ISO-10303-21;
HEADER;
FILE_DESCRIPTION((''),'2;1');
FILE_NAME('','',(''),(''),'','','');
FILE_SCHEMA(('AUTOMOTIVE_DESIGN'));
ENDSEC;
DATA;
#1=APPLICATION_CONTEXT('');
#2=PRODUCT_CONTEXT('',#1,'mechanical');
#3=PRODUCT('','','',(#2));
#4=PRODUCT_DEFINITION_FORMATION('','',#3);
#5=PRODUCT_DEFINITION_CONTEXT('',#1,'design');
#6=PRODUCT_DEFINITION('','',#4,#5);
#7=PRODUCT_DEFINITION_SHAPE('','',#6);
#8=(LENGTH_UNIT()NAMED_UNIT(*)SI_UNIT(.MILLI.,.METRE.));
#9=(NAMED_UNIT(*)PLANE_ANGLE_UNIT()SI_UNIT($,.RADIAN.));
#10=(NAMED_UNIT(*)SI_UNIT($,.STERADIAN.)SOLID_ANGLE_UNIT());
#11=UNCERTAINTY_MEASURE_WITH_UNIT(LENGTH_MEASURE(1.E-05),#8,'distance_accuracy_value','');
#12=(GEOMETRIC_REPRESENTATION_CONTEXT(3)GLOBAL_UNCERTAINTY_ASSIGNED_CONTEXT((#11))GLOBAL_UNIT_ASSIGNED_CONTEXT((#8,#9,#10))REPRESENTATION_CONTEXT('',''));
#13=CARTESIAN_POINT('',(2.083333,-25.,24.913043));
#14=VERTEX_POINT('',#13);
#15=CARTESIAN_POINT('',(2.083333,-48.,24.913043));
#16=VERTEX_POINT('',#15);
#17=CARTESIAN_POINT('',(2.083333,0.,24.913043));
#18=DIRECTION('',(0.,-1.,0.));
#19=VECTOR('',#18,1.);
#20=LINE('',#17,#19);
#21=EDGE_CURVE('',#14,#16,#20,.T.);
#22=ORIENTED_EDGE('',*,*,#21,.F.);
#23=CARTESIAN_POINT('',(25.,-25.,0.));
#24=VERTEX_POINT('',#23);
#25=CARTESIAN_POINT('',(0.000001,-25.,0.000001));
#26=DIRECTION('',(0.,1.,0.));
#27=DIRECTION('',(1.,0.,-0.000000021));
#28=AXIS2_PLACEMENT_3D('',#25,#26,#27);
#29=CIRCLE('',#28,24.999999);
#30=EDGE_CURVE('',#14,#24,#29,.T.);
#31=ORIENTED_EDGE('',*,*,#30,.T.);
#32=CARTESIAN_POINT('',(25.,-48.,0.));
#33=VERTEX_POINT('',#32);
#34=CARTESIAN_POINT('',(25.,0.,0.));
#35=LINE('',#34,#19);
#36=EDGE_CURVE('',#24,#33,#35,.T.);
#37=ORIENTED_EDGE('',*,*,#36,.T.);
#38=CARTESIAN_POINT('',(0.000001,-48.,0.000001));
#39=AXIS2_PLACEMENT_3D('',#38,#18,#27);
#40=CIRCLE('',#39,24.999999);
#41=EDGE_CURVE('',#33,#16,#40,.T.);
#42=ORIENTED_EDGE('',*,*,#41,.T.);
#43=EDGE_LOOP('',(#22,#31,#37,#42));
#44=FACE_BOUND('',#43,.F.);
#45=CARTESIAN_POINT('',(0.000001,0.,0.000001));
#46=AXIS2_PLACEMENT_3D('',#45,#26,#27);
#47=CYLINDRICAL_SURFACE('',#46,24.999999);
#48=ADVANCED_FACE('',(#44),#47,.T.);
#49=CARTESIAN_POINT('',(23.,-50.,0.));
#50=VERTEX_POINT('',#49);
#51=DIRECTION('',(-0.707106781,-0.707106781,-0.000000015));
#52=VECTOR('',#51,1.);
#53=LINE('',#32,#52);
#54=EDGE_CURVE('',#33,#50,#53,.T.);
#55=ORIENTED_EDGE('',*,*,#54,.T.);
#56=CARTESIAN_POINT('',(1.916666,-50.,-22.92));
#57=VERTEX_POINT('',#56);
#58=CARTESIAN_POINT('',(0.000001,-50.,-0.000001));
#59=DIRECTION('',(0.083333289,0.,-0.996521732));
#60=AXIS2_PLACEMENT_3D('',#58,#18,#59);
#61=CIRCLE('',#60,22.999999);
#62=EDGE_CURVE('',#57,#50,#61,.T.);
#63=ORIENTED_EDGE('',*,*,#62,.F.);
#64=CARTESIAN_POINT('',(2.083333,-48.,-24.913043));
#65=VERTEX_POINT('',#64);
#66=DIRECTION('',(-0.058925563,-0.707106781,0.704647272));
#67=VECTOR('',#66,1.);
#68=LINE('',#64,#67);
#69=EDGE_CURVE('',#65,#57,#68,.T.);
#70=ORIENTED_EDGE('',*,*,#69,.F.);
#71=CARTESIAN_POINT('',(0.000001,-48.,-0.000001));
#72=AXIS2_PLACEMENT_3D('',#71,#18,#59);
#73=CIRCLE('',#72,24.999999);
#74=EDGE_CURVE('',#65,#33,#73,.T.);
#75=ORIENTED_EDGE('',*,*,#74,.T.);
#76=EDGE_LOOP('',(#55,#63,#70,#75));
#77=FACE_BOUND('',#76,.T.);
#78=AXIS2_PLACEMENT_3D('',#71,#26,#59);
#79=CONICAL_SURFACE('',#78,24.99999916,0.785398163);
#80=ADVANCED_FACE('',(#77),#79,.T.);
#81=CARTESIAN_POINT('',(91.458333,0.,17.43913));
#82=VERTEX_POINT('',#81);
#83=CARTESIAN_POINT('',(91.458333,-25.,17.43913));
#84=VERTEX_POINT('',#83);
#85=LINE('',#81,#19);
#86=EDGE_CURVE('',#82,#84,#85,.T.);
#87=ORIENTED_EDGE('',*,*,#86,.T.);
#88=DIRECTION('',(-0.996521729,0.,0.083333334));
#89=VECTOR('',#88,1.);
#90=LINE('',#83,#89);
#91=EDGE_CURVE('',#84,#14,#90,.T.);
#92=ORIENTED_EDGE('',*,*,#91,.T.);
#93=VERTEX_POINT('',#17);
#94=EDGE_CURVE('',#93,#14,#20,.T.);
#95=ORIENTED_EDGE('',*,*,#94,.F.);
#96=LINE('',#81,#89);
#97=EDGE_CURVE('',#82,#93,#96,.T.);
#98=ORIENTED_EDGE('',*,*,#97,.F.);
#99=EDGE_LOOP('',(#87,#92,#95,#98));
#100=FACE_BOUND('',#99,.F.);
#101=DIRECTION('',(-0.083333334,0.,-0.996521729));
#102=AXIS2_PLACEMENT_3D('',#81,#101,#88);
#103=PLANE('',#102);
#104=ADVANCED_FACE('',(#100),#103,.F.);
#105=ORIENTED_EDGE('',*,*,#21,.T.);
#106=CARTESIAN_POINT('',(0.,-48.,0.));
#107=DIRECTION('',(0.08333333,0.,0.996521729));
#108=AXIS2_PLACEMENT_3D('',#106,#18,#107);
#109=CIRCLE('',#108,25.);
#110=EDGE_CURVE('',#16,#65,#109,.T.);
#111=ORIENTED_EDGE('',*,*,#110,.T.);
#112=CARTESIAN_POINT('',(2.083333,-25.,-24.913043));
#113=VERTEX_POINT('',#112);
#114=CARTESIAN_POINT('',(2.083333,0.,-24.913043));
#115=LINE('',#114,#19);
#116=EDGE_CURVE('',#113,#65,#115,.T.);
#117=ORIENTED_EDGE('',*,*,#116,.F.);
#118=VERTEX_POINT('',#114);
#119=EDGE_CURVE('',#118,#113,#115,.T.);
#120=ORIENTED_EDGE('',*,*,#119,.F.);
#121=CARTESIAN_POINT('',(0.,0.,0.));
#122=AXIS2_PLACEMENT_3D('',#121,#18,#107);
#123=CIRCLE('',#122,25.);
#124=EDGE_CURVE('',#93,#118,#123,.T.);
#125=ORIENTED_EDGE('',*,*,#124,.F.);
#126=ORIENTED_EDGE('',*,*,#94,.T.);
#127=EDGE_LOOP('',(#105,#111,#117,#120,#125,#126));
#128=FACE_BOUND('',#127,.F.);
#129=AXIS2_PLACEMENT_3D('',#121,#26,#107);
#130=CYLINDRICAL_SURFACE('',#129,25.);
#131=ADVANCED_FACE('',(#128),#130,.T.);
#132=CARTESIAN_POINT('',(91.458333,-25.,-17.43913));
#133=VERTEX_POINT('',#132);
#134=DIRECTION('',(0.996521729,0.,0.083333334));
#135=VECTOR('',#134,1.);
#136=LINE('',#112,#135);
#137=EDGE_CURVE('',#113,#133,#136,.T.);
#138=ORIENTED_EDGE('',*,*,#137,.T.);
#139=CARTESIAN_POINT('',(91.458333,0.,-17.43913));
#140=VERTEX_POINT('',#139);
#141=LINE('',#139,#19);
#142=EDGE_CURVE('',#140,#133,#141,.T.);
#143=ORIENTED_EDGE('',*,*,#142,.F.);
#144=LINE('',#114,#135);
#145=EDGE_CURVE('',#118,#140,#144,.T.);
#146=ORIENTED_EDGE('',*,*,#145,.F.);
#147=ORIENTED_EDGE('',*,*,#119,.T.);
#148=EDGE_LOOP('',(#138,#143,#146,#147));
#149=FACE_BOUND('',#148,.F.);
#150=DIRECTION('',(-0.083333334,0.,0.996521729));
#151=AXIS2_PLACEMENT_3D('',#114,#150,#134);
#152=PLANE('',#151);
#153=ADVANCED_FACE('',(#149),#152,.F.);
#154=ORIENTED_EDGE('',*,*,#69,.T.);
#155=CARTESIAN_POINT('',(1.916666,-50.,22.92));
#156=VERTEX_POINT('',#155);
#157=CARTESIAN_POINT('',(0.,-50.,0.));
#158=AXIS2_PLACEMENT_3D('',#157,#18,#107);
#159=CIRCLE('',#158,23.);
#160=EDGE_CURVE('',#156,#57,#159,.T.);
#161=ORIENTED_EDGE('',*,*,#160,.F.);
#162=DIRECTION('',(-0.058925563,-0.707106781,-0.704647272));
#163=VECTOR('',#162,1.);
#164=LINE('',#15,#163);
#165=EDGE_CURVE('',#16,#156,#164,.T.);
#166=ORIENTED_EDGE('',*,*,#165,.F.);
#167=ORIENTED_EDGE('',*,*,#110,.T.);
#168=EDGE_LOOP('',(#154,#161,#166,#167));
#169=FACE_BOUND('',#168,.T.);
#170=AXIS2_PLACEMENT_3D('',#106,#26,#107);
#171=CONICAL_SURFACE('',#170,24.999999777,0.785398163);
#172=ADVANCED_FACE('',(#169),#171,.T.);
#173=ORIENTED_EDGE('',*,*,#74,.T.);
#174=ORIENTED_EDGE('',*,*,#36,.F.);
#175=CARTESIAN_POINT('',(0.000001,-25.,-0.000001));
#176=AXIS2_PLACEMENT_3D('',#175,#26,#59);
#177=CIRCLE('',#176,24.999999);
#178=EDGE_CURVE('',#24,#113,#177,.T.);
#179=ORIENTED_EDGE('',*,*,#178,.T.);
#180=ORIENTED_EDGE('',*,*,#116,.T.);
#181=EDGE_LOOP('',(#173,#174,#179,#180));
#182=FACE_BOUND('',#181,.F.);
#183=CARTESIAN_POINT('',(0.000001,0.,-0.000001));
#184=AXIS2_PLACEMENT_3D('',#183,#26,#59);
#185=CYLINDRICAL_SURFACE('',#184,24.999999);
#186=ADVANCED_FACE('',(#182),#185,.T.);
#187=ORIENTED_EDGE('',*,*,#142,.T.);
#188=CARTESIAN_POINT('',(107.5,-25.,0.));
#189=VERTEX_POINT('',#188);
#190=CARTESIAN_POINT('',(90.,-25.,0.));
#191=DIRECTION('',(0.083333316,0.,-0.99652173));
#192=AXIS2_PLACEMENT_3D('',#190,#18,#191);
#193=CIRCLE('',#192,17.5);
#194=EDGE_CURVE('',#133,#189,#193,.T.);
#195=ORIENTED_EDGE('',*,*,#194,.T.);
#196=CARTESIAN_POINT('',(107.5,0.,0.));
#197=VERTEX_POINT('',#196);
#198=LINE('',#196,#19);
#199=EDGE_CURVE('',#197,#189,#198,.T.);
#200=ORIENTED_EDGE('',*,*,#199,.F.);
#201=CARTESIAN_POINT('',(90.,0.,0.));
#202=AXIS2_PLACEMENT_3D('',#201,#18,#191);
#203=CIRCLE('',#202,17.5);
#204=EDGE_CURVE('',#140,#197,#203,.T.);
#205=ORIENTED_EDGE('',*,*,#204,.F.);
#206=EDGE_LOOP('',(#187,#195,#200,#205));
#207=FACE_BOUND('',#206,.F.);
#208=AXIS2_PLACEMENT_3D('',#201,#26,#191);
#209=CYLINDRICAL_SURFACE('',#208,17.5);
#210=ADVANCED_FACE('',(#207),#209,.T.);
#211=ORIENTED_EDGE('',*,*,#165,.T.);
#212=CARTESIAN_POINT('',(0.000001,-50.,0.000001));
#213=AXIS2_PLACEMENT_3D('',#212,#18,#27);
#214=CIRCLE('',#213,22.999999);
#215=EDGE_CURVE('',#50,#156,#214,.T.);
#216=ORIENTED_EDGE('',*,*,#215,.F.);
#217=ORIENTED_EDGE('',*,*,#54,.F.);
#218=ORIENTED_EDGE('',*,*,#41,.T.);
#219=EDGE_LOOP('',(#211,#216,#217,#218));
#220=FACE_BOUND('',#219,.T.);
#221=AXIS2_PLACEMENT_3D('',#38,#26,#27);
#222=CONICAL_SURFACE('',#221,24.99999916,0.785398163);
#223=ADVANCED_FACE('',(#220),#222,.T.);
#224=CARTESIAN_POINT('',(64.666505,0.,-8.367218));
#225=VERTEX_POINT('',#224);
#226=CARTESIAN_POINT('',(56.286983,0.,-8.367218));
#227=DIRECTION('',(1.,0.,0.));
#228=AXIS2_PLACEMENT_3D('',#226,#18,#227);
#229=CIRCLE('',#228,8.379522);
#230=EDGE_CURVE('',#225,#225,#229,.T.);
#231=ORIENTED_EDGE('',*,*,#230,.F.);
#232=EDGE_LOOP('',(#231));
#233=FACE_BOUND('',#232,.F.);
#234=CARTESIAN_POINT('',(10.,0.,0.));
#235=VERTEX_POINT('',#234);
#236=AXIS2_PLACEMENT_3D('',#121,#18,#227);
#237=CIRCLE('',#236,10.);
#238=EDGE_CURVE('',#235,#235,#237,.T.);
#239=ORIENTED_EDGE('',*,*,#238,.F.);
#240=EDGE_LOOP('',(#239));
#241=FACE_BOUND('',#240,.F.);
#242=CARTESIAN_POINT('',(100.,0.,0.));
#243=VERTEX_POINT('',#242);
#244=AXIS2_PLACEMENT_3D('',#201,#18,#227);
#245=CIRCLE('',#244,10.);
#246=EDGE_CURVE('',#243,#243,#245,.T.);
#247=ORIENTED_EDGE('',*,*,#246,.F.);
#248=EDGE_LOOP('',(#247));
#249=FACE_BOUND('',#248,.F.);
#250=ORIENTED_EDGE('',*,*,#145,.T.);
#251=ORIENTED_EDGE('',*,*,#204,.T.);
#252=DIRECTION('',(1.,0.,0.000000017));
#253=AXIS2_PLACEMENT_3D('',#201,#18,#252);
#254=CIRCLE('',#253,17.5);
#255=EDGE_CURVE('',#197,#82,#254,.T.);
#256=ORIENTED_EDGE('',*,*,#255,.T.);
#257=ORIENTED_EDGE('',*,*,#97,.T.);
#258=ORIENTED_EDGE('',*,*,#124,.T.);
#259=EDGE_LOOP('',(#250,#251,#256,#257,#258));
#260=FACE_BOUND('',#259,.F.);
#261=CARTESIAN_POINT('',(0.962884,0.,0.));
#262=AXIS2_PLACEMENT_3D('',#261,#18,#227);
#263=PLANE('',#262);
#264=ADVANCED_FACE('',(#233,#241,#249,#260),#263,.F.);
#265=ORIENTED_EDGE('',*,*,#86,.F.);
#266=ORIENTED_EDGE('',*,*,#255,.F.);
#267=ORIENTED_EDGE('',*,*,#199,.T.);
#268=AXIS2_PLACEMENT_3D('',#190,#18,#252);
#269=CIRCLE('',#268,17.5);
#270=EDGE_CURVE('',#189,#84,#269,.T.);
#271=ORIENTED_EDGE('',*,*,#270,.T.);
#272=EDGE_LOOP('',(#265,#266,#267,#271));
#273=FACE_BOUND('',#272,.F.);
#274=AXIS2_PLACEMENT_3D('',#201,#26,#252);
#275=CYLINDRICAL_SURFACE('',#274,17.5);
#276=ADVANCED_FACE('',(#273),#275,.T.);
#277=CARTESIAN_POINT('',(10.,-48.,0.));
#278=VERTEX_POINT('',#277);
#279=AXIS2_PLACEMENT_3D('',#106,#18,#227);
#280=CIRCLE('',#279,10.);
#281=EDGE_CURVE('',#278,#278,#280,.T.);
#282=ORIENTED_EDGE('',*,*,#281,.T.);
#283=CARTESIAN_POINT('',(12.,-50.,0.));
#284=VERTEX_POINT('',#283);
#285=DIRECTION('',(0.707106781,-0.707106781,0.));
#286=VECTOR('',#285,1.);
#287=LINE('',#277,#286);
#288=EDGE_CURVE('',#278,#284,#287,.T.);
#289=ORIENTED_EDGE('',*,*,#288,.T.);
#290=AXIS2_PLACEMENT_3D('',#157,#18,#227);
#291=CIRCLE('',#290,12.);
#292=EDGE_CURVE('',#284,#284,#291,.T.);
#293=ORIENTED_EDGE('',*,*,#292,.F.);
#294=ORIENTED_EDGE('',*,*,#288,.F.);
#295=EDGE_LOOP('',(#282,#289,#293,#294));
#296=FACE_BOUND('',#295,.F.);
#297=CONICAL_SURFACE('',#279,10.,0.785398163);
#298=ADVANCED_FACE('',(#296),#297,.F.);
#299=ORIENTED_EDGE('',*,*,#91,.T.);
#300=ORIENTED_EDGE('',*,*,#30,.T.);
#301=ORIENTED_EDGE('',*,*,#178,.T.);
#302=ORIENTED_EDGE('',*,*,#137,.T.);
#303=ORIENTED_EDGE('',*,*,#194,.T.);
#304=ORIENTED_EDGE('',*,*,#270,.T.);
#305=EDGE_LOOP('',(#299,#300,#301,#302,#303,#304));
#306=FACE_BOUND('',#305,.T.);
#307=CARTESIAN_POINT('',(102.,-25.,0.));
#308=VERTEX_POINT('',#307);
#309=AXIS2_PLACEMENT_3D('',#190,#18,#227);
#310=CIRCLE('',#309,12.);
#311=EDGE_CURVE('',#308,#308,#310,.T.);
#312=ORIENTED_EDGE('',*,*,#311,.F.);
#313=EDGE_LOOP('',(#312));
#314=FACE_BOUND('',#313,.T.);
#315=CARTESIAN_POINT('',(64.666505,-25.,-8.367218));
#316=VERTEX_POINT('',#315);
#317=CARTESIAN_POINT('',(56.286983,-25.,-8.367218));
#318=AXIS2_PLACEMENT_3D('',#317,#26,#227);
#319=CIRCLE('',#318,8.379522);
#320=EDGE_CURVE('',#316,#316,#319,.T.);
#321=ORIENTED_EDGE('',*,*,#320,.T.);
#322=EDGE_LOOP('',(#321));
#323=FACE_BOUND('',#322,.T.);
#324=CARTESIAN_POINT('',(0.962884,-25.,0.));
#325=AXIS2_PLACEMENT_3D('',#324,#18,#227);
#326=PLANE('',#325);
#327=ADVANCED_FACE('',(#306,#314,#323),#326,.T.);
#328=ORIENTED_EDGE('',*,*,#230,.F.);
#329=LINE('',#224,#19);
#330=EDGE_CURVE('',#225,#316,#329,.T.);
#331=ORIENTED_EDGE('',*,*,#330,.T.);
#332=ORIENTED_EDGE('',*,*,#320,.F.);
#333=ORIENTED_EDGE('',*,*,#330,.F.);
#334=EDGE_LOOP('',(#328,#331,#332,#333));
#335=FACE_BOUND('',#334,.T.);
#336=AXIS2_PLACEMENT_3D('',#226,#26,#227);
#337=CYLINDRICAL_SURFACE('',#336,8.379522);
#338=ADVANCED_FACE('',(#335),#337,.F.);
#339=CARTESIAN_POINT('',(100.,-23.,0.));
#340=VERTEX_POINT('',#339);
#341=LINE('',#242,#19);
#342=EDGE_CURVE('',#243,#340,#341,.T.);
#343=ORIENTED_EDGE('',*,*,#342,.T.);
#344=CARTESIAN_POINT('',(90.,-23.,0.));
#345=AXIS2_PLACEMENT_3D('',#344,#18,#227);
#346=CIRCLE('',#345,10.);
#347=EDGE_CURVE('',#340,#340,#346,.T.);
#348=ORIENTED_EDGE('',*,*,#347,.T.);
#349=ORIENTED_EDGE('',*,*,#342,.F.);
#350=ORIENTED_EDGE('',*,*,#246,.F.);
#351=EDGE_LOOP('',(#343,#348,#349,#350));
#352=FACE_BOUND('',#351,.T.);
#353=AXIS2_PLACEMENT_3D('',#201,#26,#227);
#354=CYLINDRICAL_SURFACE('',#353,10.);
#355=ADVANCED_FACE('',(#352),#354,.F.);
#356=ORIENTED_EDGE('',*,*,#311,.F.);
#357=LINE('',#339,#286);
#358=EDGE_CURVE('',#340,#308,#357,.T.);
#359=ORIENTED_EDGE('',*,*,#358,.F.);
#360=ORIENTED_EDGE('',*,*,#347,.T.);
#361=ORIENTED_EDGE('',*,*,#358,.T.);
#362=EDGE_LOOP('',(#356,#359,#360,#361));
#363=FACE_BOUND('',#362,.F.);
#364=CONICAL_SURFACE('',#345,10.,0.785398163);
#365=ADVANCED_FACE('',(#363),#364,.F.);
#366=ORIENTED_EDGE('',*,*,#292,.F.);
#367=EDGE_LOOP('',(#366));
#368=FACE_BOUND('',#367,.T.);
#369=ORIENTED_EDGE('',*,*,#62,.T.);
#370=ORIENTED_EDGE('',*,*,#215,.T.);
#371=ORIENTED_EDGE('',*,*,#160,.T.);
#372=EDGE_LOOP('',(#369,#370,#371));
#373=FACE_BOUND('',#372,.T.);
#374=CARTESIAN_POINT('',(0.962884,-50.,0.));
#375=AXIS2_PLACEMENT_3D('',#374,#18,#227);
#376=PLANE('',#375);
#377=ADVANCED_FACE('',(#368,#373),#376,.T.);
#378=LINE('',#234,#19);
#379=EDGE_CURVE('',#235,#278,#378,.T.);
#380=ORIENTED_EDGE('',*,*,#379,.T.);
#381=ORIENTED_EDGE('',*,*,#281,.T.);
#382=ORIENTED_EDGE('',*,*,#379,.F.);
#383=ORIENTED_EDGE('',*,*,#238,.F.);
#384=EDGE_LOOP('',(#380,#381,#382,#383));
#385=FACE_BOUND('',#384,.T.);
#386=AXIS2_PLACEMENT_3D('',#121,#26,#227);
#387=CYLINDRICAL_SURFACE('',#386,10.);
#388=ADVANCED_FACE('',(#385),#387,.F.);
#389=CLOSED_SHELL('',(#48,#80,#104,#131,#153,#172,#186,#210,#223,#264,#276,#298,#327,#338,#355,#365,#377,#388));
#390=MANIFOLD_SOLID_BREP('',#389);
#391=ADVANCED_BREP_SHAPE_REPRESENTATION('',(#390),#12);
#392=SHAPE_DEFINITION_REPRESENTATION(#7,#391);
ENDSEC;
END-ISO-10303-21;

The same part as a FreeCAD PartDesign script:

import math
import FreeCAD as App
import Part
import Sketcher

V = App.Vector
Q = App.Units.Quantity


def edges_at(feature, points):
    """Names of the edges that pass closest to the given points."""
    edges = feature.Shape.Edges
    near = lambda p: min(range(len(edges)), key=lambda i: edges[i].distToShape(Part.Vertex(*p))[0])
    return sorted({f"Edge{near(p) + 1}" for p in points})

doc = App.newDocument("Part")
params = doc.addObject("Spreadsheet::Sheet", "Params")
for row, (alias, value) in enumerate([
    ("sketch1_diameter", "20 mm"),
    ("sketch1_radius", "25 mm"),
    ("sketch1_radius2", "17.5 mm"),
    ("pad1_length", "25 mm"),
    ("sketch2_diameter", "20 mm"),
    ("sketch2_radius", "24.999999 mm"),
    ("pad2_length", "50 mm"),
    ("chamfer_size", "2 mm"),
    ("pocket1_length", "34.1921 mm"),
], start=1):
    params.set(f"A{row}", alias)
    params.set(f"B{row}", "=" + value)
    params.setAlias(f"B{row}", alias)

body = doc.addObject("PartDesign::Body", "Body")

# Sketch on XZ plane
sketch1 = body.newObject("Sketcher::SketchObject", "Sketch")
sketch1.AttachmentSupport = (doc.getObject("XZ_Plane"), [""])
sketch1.MapMode = "FlatFace"
sketch1.addGeometry(Part.ArcOfCircle(Part.Circle(V(0, 0, 0), V(0, 0, 1), 25), math.radians(85), math.radians(275)), False)
sketch1.addGeometry(Part.LineSegment(V(2, -25, 0), V(91, -17, 0)), False)
sketch1.addGeometry(Part.ArcOfCircle(Part.Circle(V(90, 0, 0), V(0, 0, 1), 18), math.radians(-85), math.radians(0)), False)
sketch1.addGeometry(Part.ArcOfCircle(Part.Circle(V(90, 0, 0), V(0, 0, 1), 18), math.radians(0), math.radians(85)), False)
sketch1.addGeometry(Part.LineSegment(V(91, 17, 0), V(2, 25, 0)), False)
sketch1.addGeometry(Part.Circle(V(0, 0, 0), V(0, 0, 1), 10), False)
sketch1.addGeometry(Part.Circle(V(90, 0, 0), V(0, 0, 1), 10), False)
sketch1.addConstraint(Sketcher.Constraint("Tangent", 0, 2, 1, 1))
sketch1.addConstraint(Sketcher.Constraint("Tangent", 1, 2, 2, 1))
sketch1.addConstraint(Sketcher.Constraint("Tangent", 2, 2, 3, 1))
sketch1.addConstraint(Sketcher.Constraint("Tangent", 3, 2, 4, 1))
sketch1.addConstraint(Sketcher.Constraint("Tangent", 4, 2, 0, 1))
sketch1.addConstraint(Sketcher.Constraint("Coincident", 0, 3, -1, 1))
sketch1.addConstraint(Sketcher.Constraint("Coincident", 5, 3, -1, 1))
sketch1.addConstraint(Sketcher.Constraint("Coincident", 6, 3, 2, 3))
sketch1.addConstraint(Sketcher.Constraint("Equal", 2, 3))
sketch1.addConstraint(Sketcher.Constraint("Equal", 5, 6))
sketch1.addConstraint(Sketcher.Constraint("PointOnObject", 2, 3, -1))
sketch1.addConstraint(Sketcher.Constraint("PointOnObject", 2, 2, -1))
sketch1.addConstraint(Sketcher.Constraint("Diameter", 5, Q("20 mm")))
sketch1.addConstraint(Sketcher.Constraint("Radius", 0, Q("25 mm")))
sketch1.addConstraint(Sketcher.Constraint("Radius", 2, Q("17.5 mm")))
sketch1.addConstraint(Sketcher.Constraint("DistanceX", -1, 1, 2, 3, Q("90 mm")))
sketch1.setExpression("Constraints[12]", "Params.sketch1_diameter")
sketch1.setExpression("Constraints[13]", "Params.sketch1_radius")
sketch1.setExpression("Constraints[14]", "Params.sketch1_radius2")
pad1 = body.newObject("PartDesign::Pad", "Pad")
pad1.Profile = sketch1
pad1.setExpression("Length", "Params.pad1_length")

# Sketch on XZ plane
sketch2 = body.newObject("Sketcher::SketchObject", "Sketch001")
sketch2.AttachmentSupport = (doc.getObject("XZ_Plane"), [""])
sketch2.MapMode = "FlatFace"
sketch2.addGeometry(Part.ArcOfCircle(Part.Circle(V(0, 0, 0), V(0, 0, 1), 25), math.radians(-85), math.radians(0)), False)
sketch2.addGeometry(Part.ArcOfCircle(Part.Circle(V(0, 0, 0), V(0, 0, 1), 25), math.radians(0), math.radians(85)), False)
sketch2.addGeometry(Part.ArcOfCircle(Part.Circle(V(0, 0, 0), V(0, 0, 1), 25), math.radians(85), math.radians(275)), False)
sketch2.addGeometry(Part.Circle(V(0, 0, 0), V(0, 0, 1), 10), False)
sketch2.addConstraint(Sketcher.Constraint("Tangent", 0, 2, 1, 1))
sketch2.addConstraint(Sketcher.Constraint("Tangent", 1, 2, 2, 1))
sketch2.addConstraint(Sketcher.Constraint("Tangent", 2, 2, 0, 1))
sketch2.addConstraint(Sketcher.Constraint("Coincident", 0, 3, -1, 1))
sketch2.addConstraint(Sketcher.Constraint("Coincident", 3, 3, -1, 1))
sketch2.addConstraint(Sketcher.Constraint("PointOnObject", 0, 2, -1))
sketch2.addConstraint(Sketcher.Constraint("Vertical", 1, 2, 2, 2))
sketch2.addConstraint(Sketcher.Constraint("Diameter", 3, Q("20 mm")))
sketch2.addConstraint(Sketcher.Constraint("Radius", 0, Q("24.999999 mm")))
sketch2.addConstraint(Sketcher.Constraint("DistanceX", -1, 1, 1, 2, Q("2.083333 mm")))
sketch2.setExpression("Constraints[7]", "Params.sketch2_diameter")
sketch2.setExpression("Constraints[8]", "Params.sketch2_radius")
pad2 = body.newObject("PartDesign::Pad", "Pad001")
pad2.Profile = sketch2
pad2.setExpression("Length", "Params.pad2_length")
doc.recompute()

chamfer = body.newObject("PartDesign::Chamfer", "Chamfer")
chamfer.Base = (pad2, edges_at(pad2, [(-25, -50, 0), (-10, -50, 0), (80, -25, 0)]))
chamfer.setExpression("Size", "Params.chamfer_size")

# Sketch on XZ plane
sketch3 = body.newObject("Sketcher::SketchObject", "Sketch002")
sketch3.AttachmentSupport = (doc.getObject("XZ_Plane"), [""])
sketch3.MapMode = "FlatFace"
sketch3.addGeometry(Part.Circle(V(56, -8, 0), V(0, 0, 1), 8), False)
sketch3.addConstraint(Sketcher.Constraint("Diameter", 0, Q("16.759044 mm")))
sketch3.addConstraint(Sketcher.Constraint("DistanceX", -1, 1, 0, 3, Q("56.286983 mm")))
sketch3.addConstraint(Sketcher.Constraint("DistanceY", 0, 3, -1, 1, Q("8.367218 mm")))
pocket1 = body.newObject("PartDesign::Pocket", "Pocket")
pocket1.Profile = sketch3
pocket1.setExpression("Length", "Params.pocket1_length")
pocket1.Reversed = True

doc.recompute()
